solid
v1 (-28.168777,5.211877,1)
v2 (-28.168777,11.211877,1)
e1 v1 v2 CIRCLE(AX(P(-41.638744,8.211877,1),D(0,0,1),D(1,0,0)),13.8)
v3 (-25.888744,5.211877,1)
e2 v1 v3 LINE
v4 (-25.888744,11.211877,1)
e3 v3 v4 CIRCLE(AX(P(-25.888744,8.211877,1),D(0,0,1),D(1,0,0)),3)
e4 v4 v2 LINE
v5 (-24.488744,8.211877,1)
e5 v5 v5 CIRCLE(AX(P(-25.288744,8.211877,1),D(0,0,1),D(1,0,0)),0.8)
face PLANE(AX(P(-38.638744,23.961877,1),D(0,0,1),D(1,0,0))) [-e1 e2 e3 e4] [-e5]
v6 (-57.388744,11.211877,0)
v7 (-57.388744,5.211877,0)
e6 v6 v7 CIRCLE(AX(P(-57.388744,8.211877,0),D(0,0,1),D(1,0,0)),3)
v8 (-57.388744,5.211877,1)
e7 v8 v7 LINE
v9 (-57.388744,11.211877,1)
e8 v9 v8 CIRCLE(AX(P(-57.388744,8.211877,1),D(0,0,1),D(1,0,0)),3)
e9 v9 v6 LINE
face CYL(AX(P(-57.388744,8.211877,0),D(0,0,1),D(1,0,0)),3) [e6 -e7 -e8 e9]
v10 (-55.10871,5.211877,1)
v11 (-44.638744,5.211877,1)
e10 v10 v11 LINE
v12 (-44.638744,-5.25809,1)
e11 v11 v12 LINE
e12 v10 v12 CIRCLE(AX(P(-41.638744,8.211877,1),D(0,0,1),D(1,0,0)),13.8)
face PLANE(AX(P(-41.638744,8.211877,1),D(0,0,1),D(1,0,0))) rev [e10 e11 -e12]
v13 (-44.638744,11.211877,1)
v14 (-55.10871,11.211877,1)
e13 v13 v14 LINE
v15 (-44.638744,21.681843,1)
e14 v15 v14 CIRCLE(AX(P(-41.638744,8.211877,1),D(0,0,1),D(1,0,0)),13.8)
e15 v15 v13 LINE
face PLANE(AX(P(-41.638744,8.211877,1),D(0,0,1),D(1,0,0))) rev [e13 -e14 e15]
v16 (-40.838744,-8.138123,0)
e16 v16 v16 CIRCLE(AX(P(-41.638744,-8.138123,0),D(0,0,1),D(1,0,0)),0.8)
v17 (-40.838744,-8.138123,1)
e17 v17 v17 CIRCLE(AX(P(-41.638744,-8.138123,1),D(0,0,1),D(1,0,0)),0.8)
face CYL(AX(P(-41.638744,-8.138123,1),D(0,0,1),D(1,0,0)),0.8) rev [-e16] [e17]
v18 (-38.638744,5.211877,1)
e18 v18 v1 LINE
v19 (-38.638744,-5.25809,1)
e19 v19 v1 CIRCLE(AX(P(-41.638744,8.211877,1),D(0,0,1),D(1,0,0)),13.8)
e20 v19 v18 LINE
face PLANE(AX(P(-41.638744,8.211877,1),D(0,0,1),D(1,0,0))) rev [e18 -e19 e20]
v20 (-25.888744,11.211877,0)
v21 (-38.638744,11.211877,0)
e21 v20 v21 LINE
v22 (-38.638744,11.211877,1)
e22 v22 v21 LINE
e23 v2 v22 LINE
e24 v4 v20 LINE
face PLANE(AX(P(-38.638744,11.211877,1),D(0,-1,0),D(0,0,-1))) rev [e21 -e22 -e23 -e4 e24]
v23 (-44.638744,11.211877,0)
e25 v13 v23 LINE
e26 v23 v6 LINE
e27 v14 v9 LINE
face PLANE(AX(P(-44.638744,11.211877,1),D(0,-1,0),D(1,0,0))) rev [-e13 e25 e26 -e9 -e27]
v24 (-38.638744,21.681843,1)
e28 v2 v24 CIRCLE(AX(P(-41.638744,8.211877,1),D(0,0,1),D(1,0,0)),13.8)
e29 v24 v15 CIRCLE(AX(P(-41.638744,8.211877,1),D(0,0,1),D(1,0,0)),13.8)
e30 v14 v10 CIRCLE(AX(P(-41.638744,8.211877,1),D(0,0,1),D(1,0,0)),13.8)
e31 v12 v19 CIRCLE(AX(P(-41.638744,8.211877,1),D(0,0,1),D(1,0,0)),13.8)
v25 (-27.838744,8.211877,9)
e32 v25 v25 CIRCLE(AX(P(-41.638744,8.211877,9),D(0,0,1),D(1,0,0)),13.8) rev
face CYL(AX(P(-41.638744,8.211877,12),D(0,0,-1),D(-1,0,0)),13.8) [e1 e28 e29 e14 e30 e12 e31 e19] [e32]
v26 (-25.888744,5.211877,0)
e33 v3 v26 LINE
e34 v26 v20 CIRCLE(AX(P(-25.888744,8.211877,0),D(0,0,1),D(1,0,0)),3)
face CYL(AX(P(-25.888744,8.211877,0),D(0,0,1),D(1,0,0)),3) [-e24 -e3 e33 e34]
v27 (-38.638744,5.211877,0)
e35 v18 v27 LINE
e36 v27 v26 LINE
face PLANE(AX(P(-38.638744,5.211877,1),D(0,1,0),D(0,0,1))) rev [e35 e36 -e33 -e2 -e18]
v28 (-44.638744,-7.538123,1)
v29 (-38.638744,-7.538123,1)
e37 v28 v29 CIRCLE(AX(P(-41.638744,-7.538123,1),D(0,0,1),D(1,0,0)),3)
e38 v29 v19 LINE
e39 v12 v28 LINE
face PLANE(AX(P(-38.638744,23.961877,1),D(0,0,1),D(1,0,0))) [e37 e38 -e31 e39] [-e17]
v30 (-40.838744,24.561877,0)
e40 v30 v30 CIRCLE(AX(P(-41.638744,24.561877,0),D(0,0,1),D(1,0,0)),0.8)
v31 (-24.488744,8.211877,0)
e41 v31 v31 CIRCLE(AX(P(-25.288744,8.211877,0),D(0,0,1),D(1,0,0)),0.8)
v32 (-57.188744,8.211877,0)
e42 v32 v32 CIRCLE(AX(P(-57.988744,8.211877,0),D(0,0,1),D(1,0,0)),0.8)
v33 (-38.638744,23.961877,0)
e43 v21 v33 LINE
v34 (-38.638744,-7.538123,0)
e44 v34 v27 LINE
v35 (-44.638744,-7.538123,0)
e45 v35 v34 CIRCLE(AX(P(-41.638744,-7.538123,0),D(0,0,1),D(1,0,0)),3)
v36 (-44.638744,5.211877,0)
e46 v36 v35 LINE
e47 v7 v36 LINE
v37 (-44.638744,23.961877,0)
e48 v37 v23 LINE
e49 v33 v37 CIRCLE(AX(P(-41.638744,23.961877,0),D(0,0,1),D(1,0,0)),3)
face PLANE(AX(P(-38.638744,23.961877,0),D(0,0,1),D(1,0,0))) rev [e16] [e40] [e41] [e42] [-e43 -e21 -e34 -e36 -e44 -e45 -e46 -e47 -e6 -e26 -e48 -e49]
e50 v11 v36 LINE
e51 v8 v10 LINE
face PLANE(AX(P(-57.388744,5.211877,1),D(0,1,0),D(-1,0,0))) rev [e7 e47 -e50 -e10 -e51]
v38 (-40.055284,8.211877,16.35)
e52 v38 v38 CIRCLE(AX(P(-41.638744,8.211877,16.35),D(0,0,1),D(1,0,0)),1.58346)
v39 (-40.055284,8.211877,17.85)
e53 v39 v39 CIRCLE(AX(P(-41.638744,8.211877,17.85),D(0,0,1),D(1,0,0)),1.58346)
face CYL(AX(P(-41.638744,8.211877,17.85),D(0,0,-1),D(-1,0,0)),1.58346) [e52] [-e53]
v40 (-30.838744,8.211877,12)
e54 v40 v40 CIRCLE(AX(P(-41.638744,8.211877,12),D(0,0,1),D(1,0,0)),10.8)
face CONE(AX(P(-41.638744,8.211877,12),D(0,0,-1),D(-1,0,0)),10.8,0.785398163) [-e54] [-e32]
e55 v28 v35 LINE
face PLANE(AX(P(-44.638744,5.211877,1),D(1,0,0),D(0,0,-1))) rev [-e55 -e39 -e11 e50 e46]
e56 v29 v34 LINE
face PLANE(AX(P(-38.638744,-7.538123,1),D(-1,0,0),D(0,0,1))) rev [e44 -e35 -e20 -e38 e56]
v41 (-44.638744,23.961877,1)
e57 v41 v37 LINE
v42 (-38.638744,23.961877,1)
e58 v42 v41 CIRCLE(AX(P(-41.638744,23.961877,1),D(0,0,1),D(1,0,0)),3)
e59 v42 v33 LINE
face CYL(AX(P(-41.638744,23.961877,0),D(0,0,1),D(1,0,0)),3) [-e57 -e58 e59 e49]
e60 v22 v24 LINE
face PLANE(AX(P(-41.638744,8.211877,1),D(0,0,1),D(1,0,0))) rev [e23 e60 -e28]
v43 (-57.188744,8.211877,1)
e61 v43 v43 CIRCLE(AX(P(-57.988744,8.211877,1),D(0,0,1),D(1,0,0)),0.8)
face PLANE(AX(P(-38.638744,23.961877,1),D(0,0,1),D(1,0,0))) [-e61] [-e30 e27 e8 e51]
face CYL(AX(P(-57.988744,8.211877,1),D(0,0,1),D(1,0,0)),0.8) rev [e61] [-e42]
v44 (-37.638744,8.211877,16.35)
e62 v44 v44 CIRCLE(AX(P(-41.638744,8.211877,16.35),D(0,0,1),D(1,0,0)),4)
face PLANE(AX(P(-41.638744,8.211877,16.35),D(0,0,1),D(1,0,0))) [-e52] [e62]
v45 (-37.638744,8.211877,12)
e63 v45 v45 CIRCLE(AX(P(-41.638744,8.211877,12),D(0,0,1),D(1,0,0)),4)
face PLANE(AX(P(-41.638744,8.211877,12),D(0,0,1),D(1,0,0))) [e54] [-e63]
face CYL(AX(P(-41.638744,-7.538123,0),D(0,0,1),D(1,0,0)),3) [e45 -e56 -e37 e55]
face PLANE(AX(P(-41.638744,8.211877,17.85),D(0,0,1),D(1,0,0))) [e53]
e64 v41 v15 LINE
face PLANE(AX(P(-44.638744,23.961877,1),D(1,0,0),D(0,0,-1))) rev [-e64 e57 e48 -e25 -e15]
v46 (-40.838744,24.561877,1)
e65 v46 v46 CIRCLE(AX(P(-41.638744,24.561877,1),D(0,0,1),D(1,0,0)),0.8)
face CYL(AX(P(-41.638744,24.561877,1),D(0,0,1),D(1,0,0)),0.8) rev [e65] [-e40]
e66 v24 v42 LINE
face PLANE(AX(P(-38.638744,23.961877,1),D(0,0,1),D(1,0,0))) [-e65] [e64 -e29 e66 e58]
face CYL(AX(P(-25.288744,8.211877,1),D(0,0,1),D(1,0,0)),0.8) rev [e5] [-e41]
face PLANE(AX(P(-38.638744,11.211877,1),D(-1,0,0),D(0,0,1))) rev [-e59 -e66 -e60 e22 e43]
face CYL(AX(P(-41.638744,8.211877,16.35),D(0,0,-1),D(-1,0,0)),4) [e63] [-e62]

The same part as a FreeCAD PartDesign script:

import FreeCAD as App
import Part
import Sketcher

V = App.Vector


def edges_at(feature, points):
    """Names of the edges that pass closest to the given points."""
    edges = feature.Shape.Edges
    near = lambda p: min(range(len(edges)), key=lambda i: edges[i].distToShape(Part.Vertex(*p))[0])
    return sorted({f"Edge{near(p) + 1}" for p in points})


def add_polygon(sketch, points):
    """Adds a closed chain of lines whose ends are joined by coincident constraints."""
    first, n = sketch.GeometryCount, len(points)
    for a, b in zip(points, points[1:] + points[:1]):
        sketch.addGeometry(Part.LineSegment(App.Vector(*a, 0), App.Vector(*b, 0)), False)
    for i in range(n):
        sketch.addConstraint(Sketcher.Constraint("Coincident", first + i, 2, first + (i + 1) % n, 1))

doc = App.newDocument("Part")
body = doc.addObject("PartDesign::Body", "Body")

# Sketch on XY plane
sketch1 = body.newObject("Sketcher::SketchObject", "Sketch")
sketch1.AttachmentSupport = (doc.getObject("XY_Plane"), [""])
sketch1.MapMode = "FlatFace"
add_polygon(sketch1, [(-45, 24), (-45, 11), (-57, 11), (-57, 5), (-45, 5), (-45, -8), (-39, -8), (-39, 5), (-26, 5), (-26, 11), (-39, 11), (-39, 24)])  # lines 0-11
sketch1.addConstraint(Sketcher.Constraint("Vertical", 0))
sketch1.addConstraint(Sketcher.Constraint("Horizontal", 1))
sketch1.addConstraint(Sketcher.Constraint("Vertical", 2))
sketch1.addConstraint(Sketcher.Constraint("Horizontal", 3))
sketch1.addConstraint(Sketcher.Constraint("Vertical", 4))
sketch1.addConstraint(Sketcher.Constraint("Horizontal", 5))
sketch1.addConstraint(Sketcher.Constraint("Vertical", 6))
sketch1.addConstraint(Sketcher.Constraint("Horizontal", 7))
sketch1.addConstraint(Sketcher.Constraint("Vertical", 8))
sketch1.addConstraint(Sketcher.Constraint("Horizontal", 9))
sketch1.addConstraint(Sketcher.Constraint("Vertical", 10))
sketch1.addConstraint(Sketcher.Constraint("Horizontal", 11))
sketch1.addConstraint(Sketcher.Constraint("Horizontal", 3, 2, 6, 2))
sketch1.addConstraint(Sketcher.Constraint("Horizontal", 1, 2, 8, 2))
sketch1.addConstraint(Sketcher.Constraint("Vertical", 0, 2, 3, 2))
sketch1.addConstraint(Sketcher.Constraint("Vertical", 6, 2, 9, 2))
sketch1.addConstraint(Sketcher.Constraint("Equal", 3, 7))
sketch1.addConstraint(Sketcher.Constraint("Equal", 9, 0))
sketch1.addConstraint(Sketcher.Constraint("Equal", 11, 2))
sketch1.addConstraint(Sketcher.Constraint("Equal", 0, 4))
sketch1.addConstraint(Sketcher.Constraint("DistanceX", 5, 1, 5, 2, 6.0))
sketch1.addConstraint(Sketcher.Constraint("DistanceX", 1, 2, 1, 1, 12.75))
sketch1.addConstraint(Sketcher.Constraint("DistanceX", 0, 2, -1, 1, 44.638744))
sketch1.addConstraint(Sketcher.Constraint("DistanceY", -1, 1, 0, 2, 11.211877))
pad1 = body.newObject("PartDesign::Pad", "Pad")
pad1.Profile = sketch1
pad1.Length = 1

# Sketch on XY plane
sketch2 = body.newObject("Sketcher::SketchObject", "Sketch001")
sketch2.AttachmentSupport = (doc.getObject("XY_Plane"), [""])
sketch2.MapMode = "FlatFace"
sketch2.AttachmentOffset = App.Placement(V(0, 0, 1), App.Rotation())
sketch2.addGeometry(Part.Circle(V(-41.6, 24, 0), V(0, 0, 1), 3), False)
sketch2.addGeometry(Part.Circle(V(-25.9, 8.2, 0), V(0, 0, 1), 3), False)
sketch2.addGeometry(Part.Circle(V(-41.6, -7.5, 0), V(0, 0, 1), 3), False)
sketch2.addGeometry(Part.Circle(V(-57.4, 8.2, 0), V(0, 0, 1), 3), False)
sketch2.addConstraint(Sketcher.Constraint("Equal", 0, 1))
sketch2.addConstraint(Sketcher.Constraint("Equal", 1, 2))
sketch2.addConstraint(Sketcher.Constraint("Equal", 2, 3))
sketch2.addConstraint(Sketcher.Constraint("Horizontal", 1, 3, 3, 3))
sketch2.addConstraint(Sketcher.Constraint("Vertical", 0, 3, 2, 3))
sketch2.addConstraint(Sketcher.Constraint("Diameter", 0, 6.0))
sketch2.addConstraint(Sketcher.Constraint("DistanceY", 2, 3, 0, 3, 31.5))
sketch2.addConstraint(Sketcher.Constraint("DistanceX", 3, 3, 1, 3, 31.5))
sketch2.addConstraint(Sketcher.Constraint("DistanceX", 0, 3, 1, 3, 15.75))
sketch2.addConstraint(Sketcher.Constraint("DistanceY", 1, 3, 0, 3, 15.75))
sketch2.addConstraint(Sketcher.Constraint("DistanceX", 0, 3, -1, 1, 41.638744))
sketch2.addConstraint(Sketcher.Constraint("DistanceY", -1, 1, 0, 3, 23.961877))
pad2 = body.newObject("PartDesign::Pad", "Pad001")
pad2.Profile = sketch2
pad2.Length = 1
pad2.Reversed = True

# Sketch on XY plane
sketch3 = body.newObject("Sketcher::SketchObject", "Sketch002")
sketch3.AttachmentSupport = (doc.getObject("XY_Plane"), [""])
sketch3.MapMode = "FlatFace"
sketch3.AttachmentOffset = App.Placement(V(0, 0, 1), App.Rotation())
sketch3.addGeometry(Part.Circle(V(-41.6, 24.6, 0), V(0, 0, 1), 0.8), False)
sketch3.addGeometry(Part.Circle(V(-25.3, 8.2, 0), V(0, 0, 1), 0.8), False)
sketch3.addGeometry(Part.Circle(V(-41.6, -8.1, 0), V(0, 0, 1), 0.8), False)
sketch3.addGeometry(Part.Circle(V(-58, 8.2, 0), V(0, 0, 1), 0.8), False)
sketch3.addConstraint(Sketcher.Constraint("Equal", 0, 1))
sketch3.addConstraint(Sketcher.Constraint("Equal", 1, 2))
sketch3.addConstraint(Sketcher.Constraint("Equal", 2, 3))
sketch3.addConstraint(Sketcher.Constraint("Horizontal", 1, 3, 3, 3))
sketch3.addConstraint(Sketcher.Constraint("Vertical", 0, 3, 2, 3))
sketch3.addConstraint(Sketcher.Constraint("Diameter", 0, 1.6))
sketch3.addConstraint(Sketcher.Constraint("DistanceY", 2, 3, 0, 3, 32.7))
sketch3.addConstraint(Sketcher.Constraint("DistanceX", 3, 3, 1, 3, 32.7))
sketch3.addConstraint(Sketcher.Constraint("DistanceX", 0, 3, 1, 3, 16.35))
sketch3.addConstraint(Sketcher.Constraint("DistanceY", 1, 3, 0, 3, 16.35))
sketch3.addConstraint(Sketcher.Constraint("DistanceX", 0, 3, -1, 1, 41.638744))
sketch3.addConstraint(Sketcher.Constraint("DistanceY", -1, 1, 0, 3, 24.561877))
doc.recompute()
hole = body.newObject("PartDesign::Hole", "Hole")
hole.Profile = sketch3
hole.ThreadType = "None"
hole.Diameter = 1.6
hole.DepthType = "Dimension"
hole.Depth = 10
hole.DrillPoint = "Angled"
hole.DrillPointAngle = 118

# Sketch on XY plane
sketch4 = body.newObject("Sketcher::SketchObject", "Sketch003")
sketch4.AttachmentSupport = (doc.getObject("XY_Plane"), [""])
sketch4.MapMode = "FlatFace"
sketch4.AttachmentOffset = App.Placement(V(0, 0, 1), App.Rotation())
sketch4.addGeometry(Part.Circle(V(-42, 8, 0), V(0, 0, 1), 14), False)
sketch4.addConstraint(Sketcher.Constraint("Diameter", 0, 27.6))
sketch4.addConstraint(Sketcher.Constraint("DistanceX", 0, 3, -1, 1, 41.638744))
sketch4.addConstraint(Sketcher.Constraint("DistanceY", -1, 1, 0, 3, 8.211877))
pad3 = body.newObject("PartDesign::Pad", "Pad002")
pad3.Profile = sketch4
pad3.Length = 11
doc.recompute()

chamfer = body.newObject("PartDesign::Chamfer", "Chamfer")
chamfer.Base = (pad3, edges_at(pad3, [(-55.439, 8.212, 12)]))
chamfer.Size = 3

# Sketch on XY plane
sketch5 = body.newObject("Sketcher::SketchObject", "Sketch004")
sketch5.AttachmentSupport = (doc.getObject("XY_Plane"), [""])
sketch5.MapMode = "FlatFace"
sketch5.AttachmentOffset = App.Placement(V(0, 0, 12), App.Rotation())
sketch5.addGeometry(Part.Circle(V(-41.6, 8.2, 0), V(0, 0, 1), 4), False)
sketch5.addConstraint(Sketcher.Constraint("Diameter", 0, 8.0))
sketch5.addConstraint(Sketcher.Constraint("DistanceX", 0, 3, -1, 1, 41.638744))
sketch5.addConstraint(Sketcher.Constraint("DistanceY", -1, 1, 0, 3, 8.211877))
pad4 = body.newObject("PartDesign::Pad", "Pad003")
pad4.Profile = sketch5
pad4.Length = 4.35

# Sketch on XY plane
sketch6 = body.newObject("Sketcher::SketchObject", "Sketch005")
sketch6.AttachmentSupport = (doc.getObject("XY_Plane"), [""])
sketch6.MapMode = "FlatFace"
sketch6.AttachmentOffset = App.Placement(V(0, 0, 16.35), App.Rotation())
sketch6.addGeometry(Part.Circle(V(-41.6, 8.2, 0), V(0, 0, 1), 1.6), False)
sketch6.addConstraint(Sketcher.Constraint("Diameter", 0, 3.166919))
sketch6.addConstraint(Sketcher.Constraint("DistanceX", 0, 3, -1, 1, 41.638744))
sketch6.addConstraint(Sketcher.Constraint("DistanceY", -1, 1, 0, 3, 8.211877))
pad5 = body.newObject("PartDesign::Pad", "Pad004")
pad5.Profile = sketch6
pad5.Length = 1.5

doc.recompute()
